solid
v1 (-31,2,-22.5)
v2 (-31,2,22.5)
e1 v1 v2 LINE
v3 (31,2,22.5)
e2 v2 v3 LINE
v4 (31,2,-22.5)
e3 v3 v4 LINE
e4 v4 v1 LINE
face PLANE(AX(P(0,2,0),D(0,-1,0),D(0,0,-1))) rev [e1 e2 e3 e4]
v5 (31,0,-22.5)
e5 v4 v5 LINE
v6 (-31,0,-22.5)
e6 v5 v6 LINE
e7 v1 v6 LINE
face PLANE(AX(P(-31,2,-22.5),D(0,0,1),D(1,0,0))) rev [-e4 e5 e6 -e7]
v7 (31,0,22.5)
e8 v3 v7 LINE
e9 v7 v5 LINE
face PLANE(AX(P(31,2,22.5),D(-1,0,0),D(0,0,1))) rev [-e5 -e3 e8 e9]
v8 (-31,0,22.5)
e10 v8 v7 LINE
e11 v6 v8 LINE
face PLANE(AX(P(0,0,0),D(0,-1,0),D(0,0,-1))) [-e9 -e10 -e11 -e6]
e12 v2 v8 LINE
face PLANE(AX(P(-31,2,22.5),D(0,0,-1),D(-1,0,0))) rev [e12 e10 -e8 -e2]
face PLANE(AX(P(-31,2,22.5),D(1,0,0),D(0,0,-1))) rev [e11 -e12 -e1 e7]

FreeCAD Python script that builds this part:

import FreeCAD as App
import Part
import Sketcher

doc = App.newDocument("Part")
body = doc.addObject("PartDesign::Body", "Body")

# Sketch on XZ plane
sketch1 = body.newObject("Sketcher::SketchObject", "Sketch")
sketch1.AttachmentSupport = (doc.getObject("XZ_Plane"), [""])
sketch1.MapMode = "FlatFace"
sketch1.addGeometry([
    Part.LineSegment(App.Vector(-31, -22, 0), App.Vector(-31, 22, 0)),
    Part.LineSegment(App.Vector(-31, 22, 0), App.Vector(31, 22, 0)),
    Part.LineSegment(App.Vector(31, 22, 0), App.Vector(31, -22, 0)),
    Part.LineSegment(App.Vector(31, -22, 0), App.Vector(-31, -22, 0)),
], False)
sketch1.addConstraint([
    Sketcher.Constraint("Coincident", 0, 2, 1, 1),
    Sketcher.Constraint("Coincident", 1, 2, 2, 1),
    Sketcher.Constraint("Coincident", 2, 2, 3, 1),
    Sketcher.Constraint("Coincident", 3, 2, 0, 1),
    Sketcher.Constraint("Vertical", 0),
    Sketcher.Constraint("Horizontal", 1),
    Sketcher.Constraint("Vertical", 2),
    Sketcher.Constraint("Horizontal", 3),
    Sketcher.Constraint("Symmetric", 0, 2, 2, 2, -1, 1),
    Sketcher.Constraint("DistanceX", 1, 1, 1, 2, 62.0),
    Sketcher.Constraint("DistanceY", 0, 1, 0, 2, 45.0),
])
pad1 = body.newObject("PartDesign::Pad", "Pad")
pad1.Profile = sketch1
pad1.Length = 2
pad1.Reversed = True

doc.recompute()
